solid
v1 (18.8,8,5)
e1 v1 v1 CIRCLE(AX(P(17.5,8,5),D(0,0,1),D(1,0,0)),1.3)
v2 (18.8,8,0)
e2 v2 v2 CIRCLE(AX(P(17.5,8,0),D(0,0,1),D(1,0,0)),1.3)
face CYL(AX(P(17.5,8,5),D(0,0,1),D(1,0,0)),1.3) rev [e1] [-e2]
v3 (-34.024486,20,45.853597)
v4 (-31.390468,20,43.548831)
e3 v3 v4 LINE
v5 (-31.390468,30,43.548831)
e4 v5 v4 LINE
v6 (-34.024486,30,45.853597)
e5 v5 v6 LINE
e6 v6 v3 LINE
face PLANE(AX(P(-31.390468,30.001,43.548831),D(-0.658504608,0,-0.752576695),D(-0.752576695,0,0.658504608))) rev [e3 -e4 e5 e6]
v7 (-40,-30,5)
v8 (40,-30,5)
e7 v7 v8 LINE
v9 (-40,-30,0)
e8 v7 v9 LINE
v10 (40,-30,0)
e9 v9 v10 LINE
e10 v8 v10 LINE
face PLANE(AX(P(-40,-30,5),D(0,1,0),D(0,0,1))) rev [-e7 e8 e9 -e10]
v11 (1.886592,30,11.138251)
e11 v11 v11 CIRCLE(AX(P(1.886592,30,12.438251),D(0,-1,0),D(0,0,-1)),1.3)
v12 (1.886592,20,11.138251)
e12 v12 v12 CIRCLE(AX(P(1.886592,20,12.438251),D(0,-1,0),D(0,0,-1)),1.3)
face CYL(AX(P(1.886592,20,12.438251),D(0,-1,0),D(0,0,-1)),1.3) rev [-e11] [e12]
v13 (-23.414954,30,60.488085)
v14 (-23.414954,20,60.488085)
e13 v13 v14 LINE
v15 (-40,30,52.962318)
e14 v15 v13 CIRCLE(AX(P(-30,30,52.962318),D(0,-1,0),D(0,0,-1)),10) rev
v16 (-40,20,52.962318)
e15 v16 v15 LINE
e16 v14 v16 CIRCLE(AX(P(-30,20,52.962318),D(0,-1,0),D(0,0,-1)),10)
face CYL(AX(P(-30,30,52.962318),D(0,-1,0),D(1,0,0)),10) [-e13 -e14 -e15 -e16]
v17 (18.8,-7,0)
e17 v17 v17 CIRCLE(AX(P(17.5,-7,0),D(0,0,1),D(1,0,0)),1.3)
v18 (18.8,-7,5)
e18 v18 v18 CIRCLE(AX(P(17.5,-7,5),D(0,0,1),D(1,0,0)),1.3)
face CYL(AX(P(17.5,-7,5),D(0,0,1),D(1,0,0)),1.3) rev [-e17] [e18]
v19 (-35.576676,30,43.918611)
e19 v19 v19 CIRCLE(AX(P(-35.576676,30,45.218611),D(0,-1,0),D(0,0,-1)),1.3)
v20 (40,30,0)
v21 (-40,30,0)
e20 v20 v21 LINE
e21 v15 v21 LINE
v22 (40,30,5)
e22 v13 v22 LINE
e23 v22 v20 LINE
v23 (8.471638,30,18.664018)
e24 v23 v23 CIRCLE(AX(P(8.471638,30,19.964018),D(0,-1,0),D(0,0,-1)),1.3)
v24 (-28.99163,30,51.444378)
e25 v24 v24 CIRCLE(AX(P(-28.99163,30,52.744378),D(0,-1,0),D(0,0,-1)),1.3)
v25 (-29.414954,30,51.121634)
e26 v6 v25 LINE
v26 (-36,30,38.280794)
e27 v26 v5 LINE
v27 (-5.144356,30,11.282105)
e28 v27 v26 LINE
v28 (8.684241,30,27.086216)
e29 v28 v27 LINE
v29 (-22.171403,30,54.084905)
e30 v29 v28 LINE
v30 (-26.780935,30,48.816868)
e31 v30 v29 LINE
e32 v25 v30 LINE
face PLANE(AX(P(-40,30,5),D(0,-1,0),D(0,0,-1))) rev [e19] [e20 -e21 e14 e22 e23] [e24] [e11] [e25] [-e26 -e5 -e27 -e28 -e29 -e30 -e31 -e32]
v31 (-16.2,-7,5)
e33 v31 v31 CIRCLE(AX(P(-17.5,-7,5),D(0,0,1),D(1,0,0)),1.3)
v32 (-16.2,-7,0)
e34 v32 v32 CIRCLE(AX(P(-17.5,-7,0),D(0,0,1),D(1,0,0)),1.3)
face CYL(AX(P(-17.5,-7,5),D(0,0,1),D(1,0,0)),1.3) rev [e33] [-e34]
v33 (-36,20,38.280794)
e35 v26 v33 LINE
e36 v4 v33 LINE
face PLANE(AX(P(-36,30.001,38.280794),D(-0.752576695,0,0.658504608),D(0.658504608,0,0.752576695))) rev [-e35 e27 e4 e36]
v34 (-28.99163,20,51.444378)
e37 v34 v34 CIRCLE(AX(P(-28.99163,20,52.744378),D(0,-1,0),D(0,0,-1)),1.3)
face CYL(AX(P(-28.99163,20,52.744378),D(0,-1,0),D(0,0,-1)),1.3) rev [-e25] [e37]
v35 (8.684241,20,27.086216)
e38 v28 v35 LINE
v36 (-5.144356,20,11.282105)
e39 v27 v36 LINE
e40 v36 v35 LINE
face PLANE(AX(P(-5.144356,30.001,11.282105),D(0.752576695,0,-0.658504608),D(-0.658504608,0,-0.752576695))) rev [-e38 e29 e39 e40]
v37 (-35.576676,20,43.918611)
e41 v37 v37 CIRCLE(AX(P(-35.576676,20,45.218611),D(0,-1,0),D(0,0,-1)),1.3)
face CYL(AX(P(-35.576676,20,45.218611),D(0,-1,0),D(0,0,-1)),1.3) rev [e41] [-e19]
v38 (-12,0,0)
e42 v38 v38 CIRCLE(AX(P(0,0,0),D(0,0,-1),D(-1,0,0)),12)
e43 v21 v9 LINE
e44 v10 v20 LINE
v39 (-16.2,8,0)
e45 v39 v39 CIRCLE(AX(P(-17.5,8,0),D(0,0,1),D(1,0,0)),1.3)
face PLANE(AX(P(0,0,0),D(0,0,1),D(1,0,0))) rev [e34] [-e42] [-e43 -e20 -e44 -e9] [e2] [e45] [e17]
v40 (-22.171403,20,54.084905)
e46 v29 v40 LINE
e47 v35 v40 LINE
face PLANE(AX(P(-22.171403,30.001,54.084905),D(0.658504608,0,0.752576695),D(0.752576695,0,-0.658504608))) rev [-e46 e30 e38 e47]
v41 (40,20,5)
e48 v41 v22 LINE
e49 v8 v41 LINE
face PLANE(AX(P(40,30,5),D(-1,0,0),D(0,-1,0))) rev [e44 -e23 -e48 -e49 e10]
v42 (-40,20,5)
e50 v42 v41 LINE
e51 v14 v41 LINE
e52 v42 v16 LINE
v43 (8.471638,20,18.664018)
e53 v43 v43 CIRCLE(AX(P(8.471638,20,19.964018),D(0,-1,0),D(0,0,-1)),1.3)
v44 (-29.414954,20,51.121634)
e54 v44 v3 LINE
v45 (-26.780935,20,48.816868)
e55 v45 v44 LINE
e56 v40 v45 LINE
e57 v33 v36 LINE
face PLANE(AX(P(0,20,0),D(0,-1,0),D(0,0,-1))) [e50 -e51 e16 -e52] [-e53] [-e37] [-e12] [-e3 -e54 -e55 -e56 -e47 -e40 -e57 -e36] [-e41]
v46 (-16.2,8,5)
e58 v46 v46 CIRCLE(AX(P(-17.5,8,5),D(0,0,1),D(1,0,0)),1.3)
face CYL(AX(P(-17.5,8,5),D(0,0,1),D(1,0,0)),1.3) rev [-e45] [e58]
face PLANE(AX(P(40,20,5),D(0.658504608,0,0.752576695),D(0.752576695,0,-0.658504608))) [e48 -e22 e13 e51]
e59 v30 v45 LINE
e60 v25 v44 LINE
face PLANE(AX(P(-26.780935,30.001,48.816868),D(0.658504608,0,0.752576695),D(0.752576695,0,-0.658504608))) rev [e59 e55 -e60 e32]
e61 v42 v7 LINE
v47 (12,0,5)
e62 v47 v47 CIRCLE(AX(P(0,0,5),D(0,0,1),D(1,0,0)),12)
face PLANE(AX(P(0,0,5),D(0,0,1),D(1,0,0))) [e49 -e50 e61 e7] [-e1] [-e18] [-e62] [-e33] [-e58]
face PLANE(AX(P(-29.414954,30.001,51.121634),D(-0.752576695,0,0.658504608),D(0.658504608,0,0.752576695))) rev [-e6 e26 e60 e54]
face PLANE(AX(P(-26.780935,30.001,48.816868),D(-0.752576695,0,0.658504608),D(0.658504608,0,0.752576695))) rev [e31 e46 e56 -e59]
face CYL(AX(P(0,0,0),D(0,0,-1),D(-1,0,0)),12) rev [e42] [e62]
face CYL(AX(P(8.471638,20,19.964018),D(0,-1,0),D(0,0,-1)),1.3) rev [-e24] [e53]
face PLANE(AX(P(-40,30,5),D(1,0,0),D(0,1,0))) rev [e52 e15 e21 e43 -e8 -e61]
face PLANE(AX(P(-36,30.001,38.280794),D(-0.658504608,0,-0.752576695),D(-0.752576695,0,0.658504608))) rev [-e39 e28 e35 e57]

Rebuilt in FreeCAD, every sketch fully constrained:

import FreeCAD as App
import Part
import Sketcher

V = App.Vector
Q = App.Units.Quantity


def edges_at(feature, points):
    """Names of the edges that pass closest to the given points."""
    edges = feature.Shape.Edges
    near = lambda p: min(range(len(edges)), key=lambda i: edges[i].distToShape(Part.Vertex(*p))[0])
    return sorted({f"Edge{near(p) + 1}" for p in points})


def add_polygon(sketch, points):
    """Adds a closed chain of lines whose ends are joined by coincident constraints."""
    first, n = sketch.GeometryCount, len(points)
    for a, b in zip(points, points[1:] + points[:1]):
        sketch.addGeometry(Part.LineSegment(App.Vector(*a, 0), App.Vector(*b, 0)), False)
    for i in range(n):
        sketch.addConstraint(Sketcher.Constraint("Coincident", first + i, 2, first + (i + 1) % n, 1))

doc = App.newDocument("Part")
body = doc.addObject("PartDesign::Body", "Body")

sketch1 = doc.addObject("Sketcher::SketchObject", "Sketch")
body.addObject(sketch1)
sketch1.AttachmentSupport = (doc.XY_Plane, [""])
sketch1.MapMode = "FlatFace"
add_polygon(sketch1, [(-40, 30), (-40, -30), (40, -30), (40, 30)])
sketch1.addConstraint([
    Sketcher.Constraint("Vertical", 0),
    Sketcher.Constraint("Horizontal", 1),
    Sketcher.Constraint("Vertical", 2),
    Sketcher.Constraint("Horizontal", 3),
    Sketcher.Constraint("Symmetric", 0, 2, 2, 2, -1, 1),
    Sketcher.Constraint("DistanceX", 1, 1, 1, 2, Q("80 mm")),
    Sketcher.Constraint("DistanceY", 0, 2, 0, 1, Q("60 mm")),
])
pad1 = doc.addObject("PartDesign::Pad", "Pad")
body.addObject(pad1)
pad1.Profile = sketch1
pad1.Length = 5

sketch2 = doc.addObject("Sketcher::SketchObject", "Sketch001")
body.addObject(sketch2)
sketch2.AttachmentSupport = (doc.XZ_Plane, [""])
sketch2.MapMode = "FlatFace"
sketch2.AttachmentOffset = App.Placement(V(0, 0, -30), App.Rotation())
add_polygon(sketch2, [(40, 0), (-40, 0), (-40, 75), (40, 5)])
sketch2.addConstraint([
    Sketcher.Constraint("Horizontal", 0),
    Sketcher.Constraint("Vertical", 1),
    Sketcher.Constraint("Vertical", 3),
    Sketcher.Constraint("Symmetric", 0, 2, 3, 2, -1, 1),
    Sketcher.Constraint("DistanceX", 0, 2, 0, 1, Q("80 mm")),
    Sketcher.Constraint("DistanceY", 1, 1, 1, 2, Q("75 mm")),
    Sketcher.Constraint("DistanceY", 3, 2, 3, 1, Q("5 mm")),
])
pad2 = doc.addObject("PartDesign::Pad", "Pad001")
body.addObject(pad2)
pad2.Profile = sketch2
pad2.Length = 10

sketch3 = doc.addObject("Sketcher::SketchObject", "Sketch002")
body.addObject(sketch3)
sketch3.AttachmentSupport = (doc.XY_Plane, [""])
sketch3.MapMode = "FlatFace"
sketch3.AttachmentOffset = App.Placement(V(0, 0, 5), App.Rotation())
sketch3.addGeometry([
    Part.Circle(V(-17.5, 8, 0), V(0, 0, 1), 1.3),
    Part.Circle(V(-17.5, -7, 0), V(0, 0, 1), 1.3),
    Part.Circle(V(17.5, 8, 0), V(0, 0, 1), 1.3),
    Part.Circle(V(17.5, -7, 0), V(0, 0, 1), 1.3),
], False)
sketch3.addConstraint([
    Sketcher.Constraint("Equal", 0, 1),
    Sketcher.Constraint("Equal", 1, 2),
    Sketcher.Constraint("Equal", 2, 3),
    Sketcher.Constraint("Symmetric", 0, 3, 2, 3, -2),
    Sketcher.Constraint("Symmetric", 1, 3, 3, 3, -2),
    Sketcher.Constraint("Vertical", 0, 3, 1, 3),
    Sketcher.Constraint("Diameter", 0, Q("2.6 mm")),
    Sketcher.Constraint("DistanceY", -1, 1, 0, 3, Q("8 mm")),
    Sketcher.Constraint("DistanceY", 1, 3, -1, 1, Q("7 mm")),
    Sketcher.Constraint("DistanceX", 0, 3, 2, 3, Q("35 mm")),
])
doc.recompute()
hole = doc.addObject("PartDesign::Hole", "Hole")
body.addObject(hole)
hole.Profile = sketch3
hole.ThreadType = "None"
hole.Diameter = 2.6
hole.DepthType = "Dimension"
hole.Depth = 5
hole.DrillPoint = "Flat"

sketch4 = doc.addObject("Sketcher::SketchObject", "Sketch003")
body.addObject(sketch4)
sketch4.AttachmentSupport = (doc.XZ_Plane, [""])
sketch4.MapMode = "FlatFace"
sketch4.AttachmentOffset = App.Placement(V(0, 0, -20), App.Rotation())
add_polygon(sketch4, [(-36, 38.3), (-5.1, 11.3), (8.7, 27.1), (-22.2, 54.1), (-26.8, 48.8), (-29.4, 51.1), (-34, 45.9), (-31.4, 43.5)])
sketch4.addConstraint([
    Sketcher.Constraint("Perpendicular", 0, 1),
    Sketcher.Constraint("Perpendicular", 1, 2),
    Sketcher.Constraint("Perpendicular", 2, 3),
    Sketcher.Constraint("Perpendicular", 3, 4),
    Sketcher.Constraint("Perpendicular", 4, 5),
    Sketcher.Constraint("Perpendicular", 5, 6),
    Sketcher.Constraint("Perpendicular", 6, 7),
    Sketcher.Constraint("Equal", 0, 2),
    Sketcher.Constraint("Equal", 3, 5),
    Sketcher.Constraint("Equal", 5, 7),
    Sketcher.Constraint("Distance", 0, Q("41 mm")),
    Sketcher.Constraint("Distance", 1, Q("21 mm")),
    Sketcher.Constraint("DistanceX", 7, 2, -1, 1, Q("36 mm")),
    Sketcher.Constraint("Distance", 4, Q("3.5 mm")),
    Sketcher.Constraint("DistanceY", 0, 2, 2, 2, Q("42.8028 mm")),
    Sketcher.Constraint("DistanceY", -1, 1, 3, 2, Q("48.816868 mm")),
])
pocket1 = doc.addObject("PartDesign::Pocket", "Pocket")
body.addObject(pocket1)
pocket1.Profile = sketch4
pocket1.Type = "UpToFirst"

sketch5 = doc.addObject("Sketcher::SketchObject", "Sketch004")
body.addObject(sketch5)
sketch5.AttachmentSupport = (doc.XZ_Plane, [""])
sketch5.MapMode = "FlatFace"
sketch5.AttachmentOffset = App.Placement(V(0, 0, -20), App.Rotation())
sketch5.addGeometry([
    Part.Circle(V(-35.6, 45.2, 0), V(0, 0, 1), 1.3),
    Part.Circle(V(-29, 52.7, 0), V(0, 0, 1), 1.3),
    Part.Circle(V(8.5, 20, 0), V(0, 0, 1), 1.3),
    Part.Circle(V(1.9, 12.4, 0), V(0, 0, 1), 1.3),
], False)
sketch5.addConstraint([
    Sketcher.Constraint("Equal", 0, 1),
    Sketcher.Constraint("Equal", 1, 2),
    Sketcher.Constraint("Equal", 2, 3),
    Sketcher.Constraint("Diameter", 0, Q("2.6 mm")),
    Sketcher.Constraint("DistanceY", -1, 1, 0, 3, Q("45.218611 mm")),
    Sketcher.Constraint("DistanceX", 1, 3, -1, 1, Q("28.99163 mm")),
    Sketcher.Constraint("DistanceX", -1, 1, 2, 3, Q("8.471638 mm")),
    Sketcher.Constraint("DistanceY", -1, 1, 2, 3, Q("19.964018 mm")),
    Sketcher.Constraint("DistanceY", -1, 1, 3, 3, Q("12.438251 mm")),
    Sketcher.Constraint("DistanceY", 2, 3, 1, 3, Q("32.780359 mm")),
    Sketcher.Constraint("DistanceX", 1, 3, 3, 3, Q("30.878222 mm")),
    Sketcher.Constraint("DistanceX", 0, 3, -1, 1, Q("35.576676 mm")),
])
doc.recompute()
hole2 = doc.addObject("PartDesign::Hole", "Hole001")
body.addObject(hole2)
hole2.Profile = sketch5
hole2.ThreadType = "None"
hole2.Diameter = 2.6
hole2.DepthType = "Dimension"
hole2.Depth = 10
hole2.DrillPoint = "Flat"
doc.recompute()

fillet = doc.addObject("PartDesign::Fillet", "Fillet")
body.addObject(fillet)
fillet.Base = (hole2, edges_at(hole2, [(-40, 25, 75)]))
fillet.Radius = 10

sketch6 = doc.addObject("Sketcher::SketchObject", "Sketch005")
body.addObject(sketch6)
sketch6.AttachmentSupport = (doc.XY_Plane, [""])
sketch6.MapMode = "FlatFace"
sketch6.addGeometry(Part.Circle(V(0, 0, 0), V(0, 0, 1), 12), False)
sketch6.addConstraint([
    Sketcher.Constraint("Coincident", 0, 3, -1, 1),
    Sketcher.Constraint("Diameter", 0, Q("24 mm")),
])
doc.recompute()
hole3 = doc.addObject("PartDesign::Hole", "Hole002")
body.addObject(hole3)
hole3.Profile = sketch6
hole3.ThreadType = "None"
hole3.Diameter = 24
hole3.DepthType = "Dimension"
hole3.Depth = 5
hole3.DrillPoint = "Flat"
hole3.Reversed = True

doc.recompute()
